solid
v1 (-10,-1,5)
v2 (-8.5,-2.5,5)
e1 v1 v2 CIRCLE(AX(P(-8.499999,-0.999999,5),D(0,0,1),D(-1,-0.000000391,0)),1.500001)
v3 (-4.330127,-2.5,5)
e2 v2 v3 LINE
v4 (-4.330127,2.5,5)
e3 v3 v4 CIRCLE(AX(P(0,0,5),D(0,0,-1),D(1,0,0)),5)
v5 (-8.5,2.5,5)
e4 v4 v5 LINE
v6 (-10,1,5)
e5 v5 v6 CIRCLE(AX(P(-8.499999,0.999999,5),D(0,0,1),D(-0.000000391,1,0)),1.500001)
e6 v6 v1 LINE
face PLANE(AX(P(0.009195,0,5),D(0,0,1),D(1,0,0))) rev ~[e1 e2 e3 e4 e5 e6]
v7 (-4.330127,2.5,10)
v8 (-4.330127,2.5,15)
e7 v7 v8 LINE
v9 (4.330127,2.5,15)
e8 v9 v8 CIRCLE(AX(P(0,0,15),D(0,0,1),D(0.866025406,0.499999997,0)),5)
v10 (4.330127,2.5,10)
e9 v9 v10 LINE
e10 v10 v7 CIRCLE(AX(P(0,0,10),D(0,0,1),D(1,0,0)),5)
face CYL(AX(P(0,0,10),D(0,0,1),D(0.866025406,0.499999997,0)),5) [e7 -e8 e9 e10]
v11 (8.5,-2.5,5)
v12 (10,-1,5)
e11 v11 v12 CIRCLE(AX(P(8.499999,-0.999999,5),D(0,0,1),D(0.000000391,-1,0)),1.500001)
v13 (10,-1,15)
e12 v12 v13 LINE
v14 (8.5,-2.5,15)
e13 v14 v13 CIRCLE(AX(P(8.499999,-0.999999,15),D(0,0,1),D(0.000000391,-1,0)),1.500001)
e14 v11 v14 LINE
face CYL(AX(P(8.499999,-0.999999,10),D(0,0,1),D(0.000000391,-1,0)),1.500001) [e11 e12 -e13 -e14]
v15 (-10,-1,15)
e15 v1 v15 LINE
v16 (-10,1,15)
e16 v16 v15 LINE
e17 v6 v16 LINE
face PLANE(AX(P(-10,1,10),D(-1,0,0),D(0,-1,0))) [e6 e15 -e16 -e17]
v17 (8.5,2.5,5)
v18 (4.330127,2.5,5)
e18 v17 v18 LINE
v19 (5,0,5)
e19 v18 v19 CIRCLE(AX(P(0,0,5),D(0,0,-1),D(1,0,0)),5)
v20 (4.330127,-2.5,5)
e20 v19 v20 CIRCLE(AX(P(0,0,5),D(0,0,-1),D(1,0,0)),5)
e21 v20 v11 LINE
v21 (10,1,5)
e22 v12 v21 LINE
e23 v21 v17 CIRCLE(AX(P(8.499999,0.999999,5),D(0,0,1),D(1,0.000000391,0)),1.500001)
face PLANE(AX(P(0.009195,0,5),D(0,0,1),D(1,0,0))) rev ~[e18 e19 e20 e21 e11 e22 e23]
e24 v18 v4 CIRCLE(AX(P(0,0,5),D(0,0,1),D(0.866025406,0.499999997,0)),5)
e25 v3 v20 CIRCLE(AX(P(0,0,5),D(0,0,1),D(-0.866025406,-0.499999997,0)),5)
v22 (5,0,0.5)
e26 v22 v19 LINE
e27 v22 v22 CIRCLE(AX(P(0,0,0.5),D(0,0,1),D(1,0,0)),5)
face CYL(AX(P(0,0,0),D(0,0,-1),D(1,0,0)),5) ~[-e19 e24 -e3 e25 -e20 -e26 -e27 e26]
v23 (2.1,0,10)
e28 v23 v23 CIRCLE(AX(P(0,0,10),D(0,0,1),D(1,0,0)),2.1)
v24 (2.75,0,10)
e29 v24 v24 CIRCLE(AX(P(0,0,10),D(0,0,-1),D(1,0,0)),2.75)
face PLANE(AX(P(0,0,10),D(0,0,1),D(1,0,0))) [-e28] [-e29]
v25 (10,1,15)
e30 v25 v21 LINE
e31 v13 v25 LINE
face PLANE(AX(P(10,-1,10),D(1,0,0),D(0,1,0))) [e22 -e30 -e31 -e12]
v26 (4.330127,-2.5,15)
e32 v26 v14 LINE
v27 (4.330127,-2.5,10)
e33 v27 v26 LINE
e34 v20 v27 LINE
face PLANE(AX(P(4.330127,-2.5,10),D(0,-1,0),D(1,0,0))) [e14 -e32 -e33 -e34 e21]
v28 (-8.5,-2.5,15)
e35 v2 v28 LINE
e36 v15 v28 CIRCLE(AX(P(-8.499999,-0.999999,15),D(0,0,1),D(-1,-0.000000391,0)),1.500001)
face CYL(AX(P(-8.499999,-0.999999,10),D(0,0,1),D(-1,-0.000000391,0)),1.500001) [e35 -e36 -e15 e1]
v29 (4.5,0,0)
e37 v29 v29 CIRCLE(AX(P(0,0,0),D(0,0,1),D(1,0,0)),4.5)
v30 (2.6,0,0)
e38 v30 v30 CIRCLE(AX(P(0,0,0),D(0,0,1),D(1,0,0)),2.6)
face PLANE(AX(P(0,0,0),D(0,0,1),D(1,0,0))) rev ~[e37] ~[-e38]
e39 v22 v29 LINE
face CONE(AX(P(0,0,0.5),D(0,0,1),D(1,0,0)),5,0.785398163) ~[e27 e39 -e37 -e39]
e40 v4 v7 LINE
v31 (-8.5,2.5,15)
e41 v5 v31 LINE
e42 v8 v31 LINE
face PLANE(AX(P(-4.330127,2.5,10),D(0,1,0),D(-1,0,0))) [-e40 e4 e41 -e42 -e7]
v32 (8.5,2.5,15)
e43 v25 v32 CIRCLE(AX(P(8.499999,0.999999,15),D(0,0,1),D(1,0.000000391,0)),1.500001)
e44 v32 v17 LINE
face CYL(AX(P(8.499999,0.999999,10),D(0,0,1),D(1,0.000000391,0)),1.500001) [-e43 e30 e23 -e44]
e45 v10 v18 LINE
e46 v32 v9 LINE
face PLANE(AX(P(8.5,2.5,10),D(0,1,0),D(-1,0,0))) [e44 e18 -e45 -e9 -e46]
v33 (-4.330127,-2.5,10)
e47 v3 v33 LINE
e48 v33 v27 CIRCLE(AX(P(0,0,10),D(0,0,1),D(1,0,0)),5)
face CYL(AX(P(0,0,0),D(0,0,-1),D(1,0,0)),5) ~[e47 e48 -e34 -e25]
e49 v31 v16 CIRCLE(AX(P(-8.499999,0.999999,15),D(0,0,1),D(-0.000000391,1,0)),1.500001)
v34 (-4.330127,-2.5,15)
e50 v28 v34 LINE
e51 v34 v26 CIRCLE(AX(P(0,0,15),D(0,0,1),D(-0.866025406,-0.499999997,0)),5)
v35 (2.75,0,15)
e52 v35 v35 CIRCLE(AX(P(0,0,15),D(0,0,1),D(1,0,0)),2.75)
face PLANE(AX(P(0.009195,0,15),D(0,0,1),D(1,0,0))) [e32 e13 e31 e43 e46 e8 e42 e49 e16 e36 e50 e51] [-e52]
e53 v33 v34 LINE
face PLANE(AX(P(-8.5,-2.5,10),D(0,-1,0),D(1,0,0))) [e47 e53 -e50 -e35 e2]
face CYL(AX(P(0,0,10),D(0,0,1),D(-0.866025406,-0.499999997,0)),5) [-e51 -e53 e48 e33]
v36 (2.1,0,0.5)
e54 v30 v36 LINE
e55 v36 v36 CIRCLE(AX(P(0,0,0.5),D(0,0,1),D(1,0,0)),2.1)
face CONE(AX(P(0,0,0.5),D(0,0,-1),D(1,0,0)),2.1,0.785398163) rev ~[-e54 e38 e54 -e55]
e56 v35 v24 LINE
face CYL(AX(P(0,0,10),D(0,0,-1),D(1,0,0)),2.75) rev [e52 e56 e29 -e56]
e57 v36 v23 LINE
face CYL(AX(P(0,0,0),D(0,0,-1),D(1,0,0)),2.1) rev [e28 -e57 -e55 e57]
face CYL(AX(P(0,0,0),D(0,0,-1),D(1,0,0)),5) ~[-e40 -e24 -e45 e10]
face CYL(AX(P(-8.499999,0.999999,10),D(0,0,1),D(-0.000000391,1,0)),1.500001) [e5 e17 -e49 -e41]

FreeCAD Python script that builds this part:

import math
import FreeCAD as App
import Part
import Sketcher

V = App.Vector
Q = App.Units.Quantity


def edges_at(feature, points):
    """Names of the edges that pass closest to the given points."""
    edges = feature.Shape.Edges
    near = lambda p: min(range(len(edges)), key=lambda i: edges[i].distToShape(Part.Vertex(*p))[0])
    return sorted({f"Edge{near(p) + 1}" for p in points})

doc = App.newDocument("Part")
body = doc.addObject("PartDesign::Body", "Body")

sketch1 = body.newObject("Sketcher::SketchObject", "Sketch")
sketch1.AttachmentSupport = (doc.getObject("XY_Plane"), [""])
sketch1.MapMode = "FlatFace"
sketch1.addGeometry(Part.Circle(V(0, 0, 0), V(0, 0, 1), 5), False)
sketch1.addGeometry(Part.Circle(V(0, 0, 0), V(0, 0, 1), 2.1), False)
sketch1.addConstraint(Sketcher.Constraint("Coincident", 0, 3, -1, 1))
sketch1.addConstraint(Sketcher.Constraint("Coincident", 1, 3, -1, 1))
sketch1.addConstraint(Sketcher.Constraint("Diameter", 0, Q("10 mm")))
sketch1.addConstraint(Sketcher.Constraint("Diameter", 1, Q("4.2 mm")))
pad1 = body.newObject("PartDesign::Pad", "Pad")
pad1.Profile = sketch1
pad1.Length = 10

sketch2 = body.newObject("Sketcher::SketchObject", "Sketch001")
sketch2.AttachmentSupport = (doc.getObject("XY_Plane"), [""])
sketch2.MapMode = "FlatFace"
sketch2.AttachmentOffset = App.Placement(V(0, 0, 10), App.Rotation())
sketch2.addGeometry(Part.ArcOfCircle(Part.Circle(V(0, 0, 0), V(0, 0, 1), 5), math.radians(30), math.radians(150)), False)
sketch2.addGeometry(Part.LineSegment(V(-4.330127, 2.5, 0), V(-8.5, 2.5, 0)), False)
sketch2.addGeometry(Part.ArcOfCircle(Part.Circle(V(-8.499999, 0.999999, 0), V(0, 0, 1), 1.500001), math.radians(90.000022), math.radians(179.999978)), False)
sketch2.addGeometry(Part.LineSegment(V(-10, 1, 0), V(-10, -1, 0)), False)
sketch2.addGeometry(Part.ArcOfCircle(Part.Circle(V(-8.499999, -0.999999, 0), V(0, 0, 1), 1.500001), math.radians(-179.999978), math.radians(-90.000022)), False)
sketch2.addGeometry(Part.LineSegment(V(-8.5, -2.5, 0), V(-4.330127, -2.5, 0)), False)
sketch2.addGeometry(Part.ArcOfCircle(Part.Circle(V(0, 0, 0), V(0, 0, 1), 5), math.radians(-150), math.radians(-30)), False)
sketch2.addGeometry(Part.LineSegment(V(4.330127, -2.5, 0), V(8.5, -2.5, 0)), False)
sketch2.addGeometry(Part.ArcOfCircle(Part.Circle(V(8.499999, -0.999999, 0), V(0, 0, 1), 1.500001), math.radians(-89.999978), math.radians(-0.000022)), False)
sketch2.addGeometry(Part.LineSegment(V(10, -1, 0), V(10, 1, 0)), False)
sketch2.addGeometry(Part.ArcOfCircle(Part.Circle(V(8.499999, 0.999999, 0), V(0, 0, 1), 1.500001), math.radians(0.000022), math.radians(89.999978)), False)
sketch2.addGeometry(Part.LineSegment(V(8.5, 2.5, 0), V(4.330127, 2.5, 0)), False)
sketch2.addGeometry(Part.Circle(V(0, 0, 0), V(0, 0, 1), 2.75), False)
sketch2.addConstraint(Sketcher.Constraint("Coincident", 0, 2, 1, 1))
sketch2.addConstraint(Sketcher.Constraint("Tangent", 1, 2, 2, 1))
sketch2.addConstraint(Sketcher.Constraint("Tangent", 2, 2, 3, 1))
sketch2.addConstraint(Sketcher.Constraint("Tangent", 3, 2, 4, 1))
sketch2.addConstraint(Sketcher.Constraint("Tangent", 4, 2, 5, 1))
sketch2.addConstraint(Sketcher.Constraint("Coincident", 5, 2, 6, 1))
sketch2.addConstraint(Sketcher.Constraint("Coincident", 6, 2, 7, 1))
sketch2.addConstraint(Sketcher.Constraint("Tangent", 7, 2, 8, 1))
sketch2.addConstraint(Sketcher.Constraint("Tangent", 8, 2, 9, 1))
sketch2.addConstraint(Sketcher.Constraint("Tangent", 9, 2, 10, 1))
sketch2.addConstraint(Sketcher.Constraint("Tangent", 10, 2, 11, 1))
sketch2.addConstraint(Sketcher.Constraint("Coincident", 11, 2, 0, 1))
sketch2.addConstraint(Sketcher.Constraint("Horizontal", 1))
sketch2.addConstraint(Sketcher.Constraint("Vertical", 3))
sketch2.addConstraint(Sketcher.Constraint("Horizontal", 5))
sketch2.addConstraint(Sketcher.Constraint("Horizontal", 7))
sketch2.addConstraint(Sketcher.Constraint("Vertical", 9))
sketch2.addConstraint(Sketcher.Constraint("Horizontal", 11))
sketch2.addConstraint(Sketcher.Constraint("Coincident", 0, 3, -1, 1))
sketch2.addConstraint(Sketcher.Constraint("Coincident", 6, 3, -1, 1))
sketch2.addConstraint(Sketcher.Constraint("Coincident", 12, 3, -1, 1))
sketch2.addConstraint(Sketcher.Constraint("Equal", 2, 4))
sketch2.addConstraint(Sketcher.Constraint("Equal", 0, 6))
sketch2.addConstraint(Sketcher.Constraint("Equal", 4, 8))
sketch2.addConstraint(Sketcher.Constraint("Equal", 8, 10))
sketch2.addConstraint(Sketcher.Constraint("Symmetric", 2, 3, 8, 3, -1, 1))
sketch2.addConstraint(Sketcher.Constraint("Horizontal", 4, 3, 8, 3))
sketch2.addConstraint(Sketcher.Constraint("Horizontal", 2, 3, 10, 3))
sketch2.addConstraint(Sketcher.Constraint("Radius", 0, Q("5 mm")))
sketch2.addConstraint(Sketcher.Constraint("Diameter", 12, Q("5.5 mm")))
sketch2.addConstraint(Sketcher.Constraint("Radius", 2, Q("1.500001 mm")))
sketch2.addConstraint(Sketcher.Constraint("DistanceY", 3, 2, 3, 1, Q("2 mm")))
sketch2.addConstraint(Sketcher.Constraint("DistanceX", 2, 2, -1, 1, Q("10 mm")))
pad2 = body.newObject("PartDesign::Pad", "Pad001")
pad2.Profile = sketch2
pad2.Length = 10
pad2.Midplane = True
doc.recompute()

chamfer = body.newObject("PartDesign::Chamfer", "Chamfer")
chamfer.Base = (pad2, edges_at(pad2, [(-5, 0, 0), (-2.1, 0, 0)]))
chamfer.Size = 0.5

doc.recompute()
